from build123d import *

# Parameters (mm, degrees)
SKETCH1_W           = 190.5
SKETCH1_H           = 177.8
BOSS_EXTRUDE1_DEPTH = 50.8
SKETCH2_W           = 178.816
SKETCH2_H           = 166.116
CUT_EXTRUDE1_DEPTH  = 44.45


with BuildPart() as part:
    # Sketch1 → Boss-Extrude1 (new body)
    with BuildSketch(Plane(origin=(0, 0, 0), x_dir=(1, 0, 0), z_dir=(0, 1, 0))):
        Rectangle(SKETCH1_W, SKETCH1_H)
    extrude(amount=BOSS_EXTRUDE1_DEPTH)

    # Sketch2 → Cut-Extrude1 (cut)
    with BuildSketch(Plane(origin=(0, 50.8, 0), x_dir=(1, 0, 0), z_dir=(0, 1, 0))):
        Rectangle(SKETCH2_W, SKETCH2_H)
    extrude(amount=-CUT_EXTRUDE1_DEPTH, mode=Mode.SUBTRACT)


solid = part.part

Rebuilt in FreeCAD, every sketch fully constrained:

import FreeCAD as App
import Part
import Sketcher
from FreeCAD import Vector
Q = App.Units.Quantity

doc = App.newDocument("Part")
body = doc.addObject("PartDesign::Body", "Body")

# Sketch on XZ plane
sketch1 = body.newObject("Sketcher::SketchObject", "Sketch")
sketch1.AttachmentSupport = (doc.getObject("XZ_Plane"), [""])
sketch1.MapMode = "FlatFace"
sketch1.addGeometry([
    Part.LineSegment(Vector(-95, -89, 0), Vector(-95, 89, 0)),
    Part.LineSegment(Vector(-95, 89, 0), Vector(95, 89, 0)),
    Part.LineSegment(Vector(95, 89, 0), Vector(95, -89, 0)),
    Part.LineSegment(Vector(95, -89, 0), Vector(-95, -89, 0)),
], False)
sketch1.addConstraint([
    Sketcher.Constraint("Coincident", 0, 2, 1, 1),
    Sketcher.Constraint("Coincident", 1, 2, 2, 1),
    Sketcher.Constraint("Coincident", 2, 2, 3, 1),
    Sketcher.Constraint("Coincident", 3, 2, 0, 1),
    Sketcher.Constraint("Vertical", 0),
    Sketcher.Constraint("Horizontal", 1),
    Sketcher.Constraint("Vertical", 2),
    Sketcher.Constraint("Horizontal", 3),
    Sketcher.Constraint("Symmetric", 0, 2, 2, 2, -1, 1),
    Sketcher.Constraint("DistanceY", 0, 1, 0, 2, Q("7 in")),
    Sketcher.Constraint("DistanceX", 1, 1, 1, 2, Q("7.5 in")),
])
pad1 = body.newObject("PartDesign::Pad", "Pad")
pad1.Profile = sketch1
pad1.Length = Q("2 in")
pad1.Reversed = True

# Sketch on XZ plane
sketch2 = body.newObject("Sketcher::SketchObject", "Sketch001")
sketch2.AttachmentSupport = (doc.getObject("XZ_Plane"), [""])
sketch2.MapMode = "FlatFace"
sketch2.AttachmentOffset = App.Placement(Vector(0, 0, -2 * 25.4), App.Rotation())
sketch2.addGeometry([
    Part.LineSegment(Vector(-89, -83, 0), Vector(-89, 83, 0)),
    Part.LineSegment(Vector(-89, 83, 0), Vector(89, 83, 0)),
    Part.LineSegment(Vector(89, 83, 0), Vector(89, -83, 0)),
    Part.LineSegment(Vector(89, -83, 0), Vector(-89, -83, 0)),
], False)
sketch2.addConstraint([
    Sketcher.Constraint("Coincident", 0, 2, 1, 1),
    Sketcher.Constraint("Coincident", 1, 2, 2, 1),
    Sketcher.Constraint("Coincident", 2, 2, 3, 1),
    Sketcher.Constraint("Coincident", 3, 2, 0, 1),
    Sketcher.Constraint("Vertical", 0),
    Sketcher.Constraint("Horizontal", 1),
    Sketcher.Constraint("Vertical", 2),
    Sketcher.Constraint("Horizontal", 3),
    Sketcher.Constraint("Symmetric", 0, 2, 2, 2, -1, 1),
    Sketcher.Constraint("DistanceX", 1, 1, 1, 2, Q("7.04 in")),
    Sketcher.Constraint("DistanceY", 0, 1, 0, 2, Q("6.54 in")),
])
pocket1 = body.newObject("PartDesign::Pocket", "Pocket")
pocket1.Profile = sketch2
pocket1.Length = Q("1.75 in")
pocket1.Reversed = True

doc.recompute()
